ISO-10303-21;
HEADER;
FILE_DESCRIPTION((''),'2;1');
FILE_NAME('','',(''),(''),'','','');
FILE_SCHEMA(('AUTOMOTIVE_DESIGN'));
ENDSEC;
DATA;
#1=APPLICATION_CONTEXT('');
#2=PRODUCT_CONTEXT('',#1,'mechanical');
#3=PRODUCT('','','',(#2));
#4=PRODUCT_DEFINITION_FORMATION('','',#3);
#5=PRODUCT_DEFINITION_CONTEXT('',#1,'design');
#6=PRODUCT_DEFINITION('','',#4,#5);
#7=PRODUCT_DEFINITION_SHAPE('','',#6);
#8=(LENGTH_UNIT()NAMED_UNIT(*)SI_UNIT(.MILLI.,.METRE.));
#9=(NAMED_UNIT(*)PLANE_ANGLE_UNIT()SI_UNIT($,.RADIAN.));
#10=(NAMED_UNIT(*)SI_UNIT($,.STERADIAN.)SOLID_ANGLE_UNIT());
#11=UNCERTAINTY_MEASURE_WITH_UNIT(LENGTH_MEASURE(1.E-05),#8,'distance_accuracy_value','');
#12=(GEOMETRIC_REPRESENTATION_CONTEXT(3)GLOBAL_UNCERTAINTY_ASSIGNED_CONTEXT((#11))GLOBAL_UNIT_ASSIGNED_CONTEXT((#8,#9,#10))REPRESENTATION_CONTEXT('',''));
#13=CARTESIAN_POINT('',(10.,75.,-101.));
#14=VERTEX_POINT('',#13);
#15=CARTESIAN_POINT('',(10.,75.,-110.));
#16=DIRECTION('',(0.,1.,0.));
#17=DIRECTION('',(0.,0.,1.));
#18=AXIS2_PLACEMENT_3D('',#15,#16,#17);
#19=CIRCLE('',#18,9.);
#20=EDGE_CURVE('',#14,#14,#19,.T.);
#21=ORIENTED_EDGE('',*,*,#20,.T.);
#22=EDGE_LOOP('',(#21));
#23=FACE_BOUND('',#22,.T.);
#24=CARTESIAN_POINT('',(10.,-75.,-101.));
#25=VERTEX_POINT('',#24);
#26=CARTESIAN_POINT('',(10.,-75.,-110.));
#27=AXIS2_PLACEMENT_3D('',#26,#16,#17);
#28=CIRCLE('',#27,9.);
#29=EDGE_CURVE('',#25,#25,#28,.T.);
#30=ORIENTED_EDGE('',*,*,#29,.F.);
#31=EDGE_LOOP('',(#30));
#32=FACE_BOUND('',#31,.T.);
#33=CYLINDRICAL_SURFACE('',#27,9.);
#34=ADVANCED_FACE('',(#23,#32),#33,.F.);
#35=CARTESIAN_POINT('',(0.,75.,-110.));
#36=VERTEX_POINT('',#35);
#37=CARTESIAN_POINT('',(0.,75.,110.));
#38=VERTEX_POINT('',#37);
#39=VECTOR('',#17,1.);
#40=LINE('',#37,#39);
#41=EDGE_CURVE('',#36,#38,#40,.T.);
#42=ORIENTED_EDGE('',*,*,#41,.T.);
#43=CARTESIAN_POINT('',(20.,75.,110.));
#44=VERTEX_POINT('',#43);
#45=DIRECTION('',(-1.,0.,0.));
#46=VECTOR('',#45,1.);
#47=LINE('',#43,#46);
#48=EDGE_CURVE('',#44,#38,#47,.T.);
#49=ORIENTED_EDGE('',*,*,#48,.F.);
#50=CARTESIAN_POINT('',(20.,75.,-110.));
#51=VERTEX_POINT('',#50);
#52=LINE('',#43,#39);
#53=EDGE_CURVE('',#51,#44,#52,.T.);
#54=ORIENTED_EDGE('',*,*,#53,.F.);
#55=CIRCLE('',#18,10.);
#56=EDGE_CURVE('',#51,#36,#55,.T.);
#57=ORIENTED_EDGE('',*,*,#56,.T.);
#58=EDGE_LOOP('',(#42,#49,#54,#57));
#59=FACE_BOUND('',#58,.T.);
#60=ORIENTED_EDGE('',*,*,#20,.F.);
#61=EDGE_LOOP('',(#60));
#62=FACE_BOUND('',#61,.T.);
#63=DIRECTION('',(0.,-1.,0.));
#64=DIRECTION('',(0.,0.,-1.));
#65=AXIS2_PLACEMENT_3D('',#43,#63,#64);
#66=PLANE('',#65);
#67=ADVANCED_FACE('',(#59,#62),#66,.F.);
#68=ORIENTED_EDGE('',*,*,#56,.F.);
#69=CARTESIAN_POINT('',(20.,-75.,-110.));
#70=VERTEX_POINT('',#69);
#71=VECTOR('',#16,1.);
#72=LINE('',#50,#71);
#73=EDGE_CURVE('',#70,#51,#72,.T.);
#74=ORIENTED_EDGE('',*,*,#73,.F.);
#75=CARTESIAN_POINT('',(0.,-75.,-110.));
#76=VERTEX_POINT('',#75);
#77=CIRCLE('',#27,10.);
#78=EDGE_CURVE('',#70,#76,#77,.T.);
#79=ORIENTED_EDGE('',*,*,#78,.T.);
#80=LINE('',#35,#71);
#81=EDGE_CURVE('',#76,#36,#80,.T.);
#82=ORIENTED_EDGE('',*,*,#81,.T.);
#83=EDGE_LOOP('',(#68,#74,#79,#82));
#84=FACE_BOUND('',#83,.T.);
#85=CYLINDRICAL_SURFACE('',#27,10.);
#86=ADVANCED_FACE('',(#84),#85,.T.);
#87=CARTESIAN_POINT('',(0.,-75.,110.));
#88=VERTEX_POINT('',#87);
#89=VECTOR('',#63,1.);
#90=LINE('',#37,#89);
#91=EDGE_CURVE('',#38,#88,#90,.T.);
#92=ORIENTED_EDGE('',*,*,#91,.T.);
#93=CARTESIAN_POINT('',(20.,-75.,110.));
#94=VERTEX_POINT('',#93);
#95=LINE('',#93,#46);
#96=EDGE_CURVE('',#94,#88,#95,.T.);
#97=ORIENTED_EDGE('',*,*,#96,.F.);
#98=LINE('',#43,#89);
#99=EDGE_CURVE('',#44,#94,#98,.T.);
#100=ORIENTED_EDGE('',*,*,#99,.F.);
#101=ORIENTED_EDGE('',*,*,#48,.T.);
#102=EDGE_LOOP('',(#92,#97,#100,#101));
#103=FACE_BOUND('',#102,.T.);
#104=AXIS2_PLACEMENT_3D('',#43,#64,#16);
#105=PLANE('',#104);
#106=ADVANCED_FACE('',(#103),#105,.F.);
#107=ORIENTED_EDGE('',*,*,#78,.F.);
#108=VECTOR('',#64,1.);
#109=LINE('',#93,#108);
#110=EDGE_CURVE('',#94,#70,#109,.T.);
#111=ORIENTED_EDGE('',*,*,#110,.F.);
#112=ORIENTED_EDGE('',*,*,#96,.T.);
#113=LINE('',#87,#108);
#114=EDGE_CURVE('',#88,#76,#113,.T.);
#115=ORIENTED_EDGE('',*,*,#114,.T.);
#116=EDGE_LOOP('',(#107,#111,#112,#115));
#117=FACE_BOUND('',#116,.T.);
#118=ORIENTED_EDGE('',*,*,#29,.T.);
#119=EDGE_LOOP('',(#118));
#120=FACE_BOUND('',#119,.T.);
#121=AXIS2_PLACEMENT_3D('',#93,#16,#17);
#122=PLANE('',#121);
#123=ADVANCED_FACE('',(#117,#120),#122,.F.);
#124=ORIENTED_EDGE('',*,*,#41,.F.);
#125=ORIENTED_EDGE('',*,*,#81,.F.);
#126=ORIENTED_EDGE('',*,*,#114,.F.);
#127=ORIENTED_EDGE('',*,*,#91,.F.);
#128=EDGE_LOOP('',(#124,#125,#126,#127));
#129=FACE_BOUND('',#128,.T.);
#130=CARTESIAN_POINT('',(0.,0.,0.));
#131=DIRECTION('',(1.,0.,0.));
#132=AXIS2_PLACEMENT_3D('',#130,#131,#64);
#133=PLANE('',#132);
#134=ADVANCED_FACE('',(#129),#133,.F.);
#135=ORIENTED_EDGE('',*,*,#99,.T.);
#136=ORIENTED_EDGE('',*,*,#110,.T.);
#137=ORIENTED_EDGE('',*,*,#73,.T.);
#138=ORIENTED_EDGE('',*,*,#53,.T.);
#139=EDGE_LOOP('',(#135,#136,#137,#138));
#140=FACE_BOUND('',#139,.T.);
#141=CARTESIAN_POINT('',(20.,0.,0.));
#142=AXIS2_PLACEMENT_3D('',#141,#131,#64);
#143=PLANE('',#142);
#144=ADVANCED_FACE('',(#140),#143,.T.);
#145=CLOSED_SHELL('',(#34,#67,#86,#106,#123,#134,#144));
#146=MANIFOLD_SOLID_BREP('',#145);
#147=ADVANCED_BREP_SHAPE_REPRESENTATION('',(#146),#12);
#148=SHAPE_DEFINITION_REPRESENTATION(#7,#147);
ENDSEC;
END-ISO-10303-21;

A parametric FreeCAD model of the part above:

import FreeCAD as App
import Part
import Sketcher
Q = App.Units.Quantity


def add_polygon(sketch, points):
    """Adds a closed chain of lines whose ends are joined by coincident constraints."""
    first, n = sketch.GeometryCount, len(points)
    for a, b in zip(points, points[1:] + points[:1]):
        sketch.addGeometry(Part.LineSegment(App.Vector(*a, 0), App.Vector(*b, 0)), False)
    for i in range(n):
        sketch.addConstraint(Sketcher.Constraint("Coincident", first + i, 2, first + (i + 1) % n, 1))

doc = App.newDocument("Part")
params = doc.addObject("Spreadsheet::Sheet", "Params")
for row, (alias, value) in enumerate([
    ("sketch1_width", "150 mm"),
    ("sketch1_height", "220 mm"),
    ("pad1_length", "20 mm"),
    ("sketch2_diameter", "20 mm"),
    ("sketch2_diameter2", "18 mm"),
    ("pad2_length", "150 mm"),
    ("sketch3_diameter", "18 mm"),
    ("pocket1_length", "150 mm"),
], start=1):
    params.set(f"A{row}", alias)
    params.set(f"B{row}", "=" + value)
    params.setAlias(f"B{row}", alias)

body = doc.addObject("PartDesign::Body", "Body")

sketch1 = body.newObject("Sketcher::SketchObject", "Sketch")
sketch1.AttachmentSupport = (doc.getObject("YZ_Plane"), [""])
sketch1.MapMode = "FlatFace"
add_polygon(sketch1, [(75, 110), (-75, 110), (-75, -110), (75, -110)])
sketch1.addConstraint(Sketcher.Constraint("Horizontal", 0))
sketch1.addConstraint(Sketcher.Constraint("Vertical", 1))
sketch1.addConstraint(Sketcher.Constraint("Horizontal", 2))
sketch1.addConstraint(Sketcher.Constraint("Vertical", 3))
sketch1.addConstraint(Sketcher.Constraint("Symmetric", 0, 2, 2, 2, -1, 1))
sketch1.addConstraint(Sketcher.Constraint("DistanceX", 0, 2, 0, 1, Q("150 mm")))
sketch1.addConstraint(Sketcher.Constraint("DistanceY", 1, 2, 1, 1, Q("220 mm")))
sketch1.setExpression("Constraints[9]", "Params.sketch1_width")
sketch1.setExpression("Constraints[10]", "Params.sketch1_height")
pad1 = body.newObject("PartDesign::Pad", "Pad")
pad1.Profile = sketch1
pad1.setExpression("Length", "Params.pad1_length")

sketch2 = body.newObject("Sketcher::SketchObject", "Sketch001")
sketch2.AttachmentSupport = (doc.getObject("XZ_Plane"), [""])
sketch2.MapMode = "FlatFace"
sketch2.AttachmentOffset = App.Placement(App.Vector(0, 0, -75), App.Rotation())
sketch2.addGeometry(Part.Circle(App.Vector(10, -110, 0), App.Vector(0, 0, 1), 10), False)
sketch2.addGeometry(Part.Circle(App.Vector(10, -110, 0), App.Vector(0, 0, 1), 9), False)
sketch2.addConstraint(Sketcher.Constraint("Coincident", 1, 3, 0, 3))
sketch2.addConstraint(Sketcher.Constraint("Diameter", 0, Q("20 mm")))
sketch2.addConstraint(Sketcher.Constraint("Diameter", 1, Q("18 mm")))
sketch2.addConstraint(Sketcher.Constraint("DistanceX", -1, 1, 0, 3, Q("10 mm")))
sketch2.addConstraint(Sketcher.Constraint("DistanceY", 0, 3, -1, 1, Q("110 mm")))
sketch2.setExpression("Constraints[1]", "Params.sketch2_diameter")
sketch2.setExpression("Constraints[2]", "Params.sketch2_diameter2")
pad2 = body.newObject("PartDesign::Pad", "Pad001")
pad2.Profile = sketch2
pad2.setExpression("Length", "Params.pad2_length")

sketch3 = body.newObject("Sketcher::SketchObject", "Sketch002")
sketch3.AttachmentSupport = (doc.getObject("XZ_Plane"), [""])
sketch3.MapMode = "FlatFace"
sketch3.AttachmentOffset = App.Placement(App.Vector(0, 0, -75), App.Rotation())
sketch3.addGeometry(Part.Circle(App.Vector(10, -110, 0), App.Vector(0, 0, 1), 9), False)
sketch3.addConstraint(Sketcher.Constraint("Diameter", 0, Q("18 mm")))
sketch3.addConstraint(Sketcher.Constraint("DistanceX", -1, 1, 0, 3, Q("10 mm")))
sketch3.addConstraint(Sketcher.Constraint("DistanceY", 0, 3, -1, 1, Q("110 mm")))
sketch3.setExpression("Constraints[0]", "Params.sketch3_diameter")
pocket1 = body.newObject("PartDesign::Pocket", "Pocket")
pocket1.Profile = sketch3
pocket1.setExpression("Length", "Params.pocket1_length")
pocket1.Reversed = True

doc.recompute()
